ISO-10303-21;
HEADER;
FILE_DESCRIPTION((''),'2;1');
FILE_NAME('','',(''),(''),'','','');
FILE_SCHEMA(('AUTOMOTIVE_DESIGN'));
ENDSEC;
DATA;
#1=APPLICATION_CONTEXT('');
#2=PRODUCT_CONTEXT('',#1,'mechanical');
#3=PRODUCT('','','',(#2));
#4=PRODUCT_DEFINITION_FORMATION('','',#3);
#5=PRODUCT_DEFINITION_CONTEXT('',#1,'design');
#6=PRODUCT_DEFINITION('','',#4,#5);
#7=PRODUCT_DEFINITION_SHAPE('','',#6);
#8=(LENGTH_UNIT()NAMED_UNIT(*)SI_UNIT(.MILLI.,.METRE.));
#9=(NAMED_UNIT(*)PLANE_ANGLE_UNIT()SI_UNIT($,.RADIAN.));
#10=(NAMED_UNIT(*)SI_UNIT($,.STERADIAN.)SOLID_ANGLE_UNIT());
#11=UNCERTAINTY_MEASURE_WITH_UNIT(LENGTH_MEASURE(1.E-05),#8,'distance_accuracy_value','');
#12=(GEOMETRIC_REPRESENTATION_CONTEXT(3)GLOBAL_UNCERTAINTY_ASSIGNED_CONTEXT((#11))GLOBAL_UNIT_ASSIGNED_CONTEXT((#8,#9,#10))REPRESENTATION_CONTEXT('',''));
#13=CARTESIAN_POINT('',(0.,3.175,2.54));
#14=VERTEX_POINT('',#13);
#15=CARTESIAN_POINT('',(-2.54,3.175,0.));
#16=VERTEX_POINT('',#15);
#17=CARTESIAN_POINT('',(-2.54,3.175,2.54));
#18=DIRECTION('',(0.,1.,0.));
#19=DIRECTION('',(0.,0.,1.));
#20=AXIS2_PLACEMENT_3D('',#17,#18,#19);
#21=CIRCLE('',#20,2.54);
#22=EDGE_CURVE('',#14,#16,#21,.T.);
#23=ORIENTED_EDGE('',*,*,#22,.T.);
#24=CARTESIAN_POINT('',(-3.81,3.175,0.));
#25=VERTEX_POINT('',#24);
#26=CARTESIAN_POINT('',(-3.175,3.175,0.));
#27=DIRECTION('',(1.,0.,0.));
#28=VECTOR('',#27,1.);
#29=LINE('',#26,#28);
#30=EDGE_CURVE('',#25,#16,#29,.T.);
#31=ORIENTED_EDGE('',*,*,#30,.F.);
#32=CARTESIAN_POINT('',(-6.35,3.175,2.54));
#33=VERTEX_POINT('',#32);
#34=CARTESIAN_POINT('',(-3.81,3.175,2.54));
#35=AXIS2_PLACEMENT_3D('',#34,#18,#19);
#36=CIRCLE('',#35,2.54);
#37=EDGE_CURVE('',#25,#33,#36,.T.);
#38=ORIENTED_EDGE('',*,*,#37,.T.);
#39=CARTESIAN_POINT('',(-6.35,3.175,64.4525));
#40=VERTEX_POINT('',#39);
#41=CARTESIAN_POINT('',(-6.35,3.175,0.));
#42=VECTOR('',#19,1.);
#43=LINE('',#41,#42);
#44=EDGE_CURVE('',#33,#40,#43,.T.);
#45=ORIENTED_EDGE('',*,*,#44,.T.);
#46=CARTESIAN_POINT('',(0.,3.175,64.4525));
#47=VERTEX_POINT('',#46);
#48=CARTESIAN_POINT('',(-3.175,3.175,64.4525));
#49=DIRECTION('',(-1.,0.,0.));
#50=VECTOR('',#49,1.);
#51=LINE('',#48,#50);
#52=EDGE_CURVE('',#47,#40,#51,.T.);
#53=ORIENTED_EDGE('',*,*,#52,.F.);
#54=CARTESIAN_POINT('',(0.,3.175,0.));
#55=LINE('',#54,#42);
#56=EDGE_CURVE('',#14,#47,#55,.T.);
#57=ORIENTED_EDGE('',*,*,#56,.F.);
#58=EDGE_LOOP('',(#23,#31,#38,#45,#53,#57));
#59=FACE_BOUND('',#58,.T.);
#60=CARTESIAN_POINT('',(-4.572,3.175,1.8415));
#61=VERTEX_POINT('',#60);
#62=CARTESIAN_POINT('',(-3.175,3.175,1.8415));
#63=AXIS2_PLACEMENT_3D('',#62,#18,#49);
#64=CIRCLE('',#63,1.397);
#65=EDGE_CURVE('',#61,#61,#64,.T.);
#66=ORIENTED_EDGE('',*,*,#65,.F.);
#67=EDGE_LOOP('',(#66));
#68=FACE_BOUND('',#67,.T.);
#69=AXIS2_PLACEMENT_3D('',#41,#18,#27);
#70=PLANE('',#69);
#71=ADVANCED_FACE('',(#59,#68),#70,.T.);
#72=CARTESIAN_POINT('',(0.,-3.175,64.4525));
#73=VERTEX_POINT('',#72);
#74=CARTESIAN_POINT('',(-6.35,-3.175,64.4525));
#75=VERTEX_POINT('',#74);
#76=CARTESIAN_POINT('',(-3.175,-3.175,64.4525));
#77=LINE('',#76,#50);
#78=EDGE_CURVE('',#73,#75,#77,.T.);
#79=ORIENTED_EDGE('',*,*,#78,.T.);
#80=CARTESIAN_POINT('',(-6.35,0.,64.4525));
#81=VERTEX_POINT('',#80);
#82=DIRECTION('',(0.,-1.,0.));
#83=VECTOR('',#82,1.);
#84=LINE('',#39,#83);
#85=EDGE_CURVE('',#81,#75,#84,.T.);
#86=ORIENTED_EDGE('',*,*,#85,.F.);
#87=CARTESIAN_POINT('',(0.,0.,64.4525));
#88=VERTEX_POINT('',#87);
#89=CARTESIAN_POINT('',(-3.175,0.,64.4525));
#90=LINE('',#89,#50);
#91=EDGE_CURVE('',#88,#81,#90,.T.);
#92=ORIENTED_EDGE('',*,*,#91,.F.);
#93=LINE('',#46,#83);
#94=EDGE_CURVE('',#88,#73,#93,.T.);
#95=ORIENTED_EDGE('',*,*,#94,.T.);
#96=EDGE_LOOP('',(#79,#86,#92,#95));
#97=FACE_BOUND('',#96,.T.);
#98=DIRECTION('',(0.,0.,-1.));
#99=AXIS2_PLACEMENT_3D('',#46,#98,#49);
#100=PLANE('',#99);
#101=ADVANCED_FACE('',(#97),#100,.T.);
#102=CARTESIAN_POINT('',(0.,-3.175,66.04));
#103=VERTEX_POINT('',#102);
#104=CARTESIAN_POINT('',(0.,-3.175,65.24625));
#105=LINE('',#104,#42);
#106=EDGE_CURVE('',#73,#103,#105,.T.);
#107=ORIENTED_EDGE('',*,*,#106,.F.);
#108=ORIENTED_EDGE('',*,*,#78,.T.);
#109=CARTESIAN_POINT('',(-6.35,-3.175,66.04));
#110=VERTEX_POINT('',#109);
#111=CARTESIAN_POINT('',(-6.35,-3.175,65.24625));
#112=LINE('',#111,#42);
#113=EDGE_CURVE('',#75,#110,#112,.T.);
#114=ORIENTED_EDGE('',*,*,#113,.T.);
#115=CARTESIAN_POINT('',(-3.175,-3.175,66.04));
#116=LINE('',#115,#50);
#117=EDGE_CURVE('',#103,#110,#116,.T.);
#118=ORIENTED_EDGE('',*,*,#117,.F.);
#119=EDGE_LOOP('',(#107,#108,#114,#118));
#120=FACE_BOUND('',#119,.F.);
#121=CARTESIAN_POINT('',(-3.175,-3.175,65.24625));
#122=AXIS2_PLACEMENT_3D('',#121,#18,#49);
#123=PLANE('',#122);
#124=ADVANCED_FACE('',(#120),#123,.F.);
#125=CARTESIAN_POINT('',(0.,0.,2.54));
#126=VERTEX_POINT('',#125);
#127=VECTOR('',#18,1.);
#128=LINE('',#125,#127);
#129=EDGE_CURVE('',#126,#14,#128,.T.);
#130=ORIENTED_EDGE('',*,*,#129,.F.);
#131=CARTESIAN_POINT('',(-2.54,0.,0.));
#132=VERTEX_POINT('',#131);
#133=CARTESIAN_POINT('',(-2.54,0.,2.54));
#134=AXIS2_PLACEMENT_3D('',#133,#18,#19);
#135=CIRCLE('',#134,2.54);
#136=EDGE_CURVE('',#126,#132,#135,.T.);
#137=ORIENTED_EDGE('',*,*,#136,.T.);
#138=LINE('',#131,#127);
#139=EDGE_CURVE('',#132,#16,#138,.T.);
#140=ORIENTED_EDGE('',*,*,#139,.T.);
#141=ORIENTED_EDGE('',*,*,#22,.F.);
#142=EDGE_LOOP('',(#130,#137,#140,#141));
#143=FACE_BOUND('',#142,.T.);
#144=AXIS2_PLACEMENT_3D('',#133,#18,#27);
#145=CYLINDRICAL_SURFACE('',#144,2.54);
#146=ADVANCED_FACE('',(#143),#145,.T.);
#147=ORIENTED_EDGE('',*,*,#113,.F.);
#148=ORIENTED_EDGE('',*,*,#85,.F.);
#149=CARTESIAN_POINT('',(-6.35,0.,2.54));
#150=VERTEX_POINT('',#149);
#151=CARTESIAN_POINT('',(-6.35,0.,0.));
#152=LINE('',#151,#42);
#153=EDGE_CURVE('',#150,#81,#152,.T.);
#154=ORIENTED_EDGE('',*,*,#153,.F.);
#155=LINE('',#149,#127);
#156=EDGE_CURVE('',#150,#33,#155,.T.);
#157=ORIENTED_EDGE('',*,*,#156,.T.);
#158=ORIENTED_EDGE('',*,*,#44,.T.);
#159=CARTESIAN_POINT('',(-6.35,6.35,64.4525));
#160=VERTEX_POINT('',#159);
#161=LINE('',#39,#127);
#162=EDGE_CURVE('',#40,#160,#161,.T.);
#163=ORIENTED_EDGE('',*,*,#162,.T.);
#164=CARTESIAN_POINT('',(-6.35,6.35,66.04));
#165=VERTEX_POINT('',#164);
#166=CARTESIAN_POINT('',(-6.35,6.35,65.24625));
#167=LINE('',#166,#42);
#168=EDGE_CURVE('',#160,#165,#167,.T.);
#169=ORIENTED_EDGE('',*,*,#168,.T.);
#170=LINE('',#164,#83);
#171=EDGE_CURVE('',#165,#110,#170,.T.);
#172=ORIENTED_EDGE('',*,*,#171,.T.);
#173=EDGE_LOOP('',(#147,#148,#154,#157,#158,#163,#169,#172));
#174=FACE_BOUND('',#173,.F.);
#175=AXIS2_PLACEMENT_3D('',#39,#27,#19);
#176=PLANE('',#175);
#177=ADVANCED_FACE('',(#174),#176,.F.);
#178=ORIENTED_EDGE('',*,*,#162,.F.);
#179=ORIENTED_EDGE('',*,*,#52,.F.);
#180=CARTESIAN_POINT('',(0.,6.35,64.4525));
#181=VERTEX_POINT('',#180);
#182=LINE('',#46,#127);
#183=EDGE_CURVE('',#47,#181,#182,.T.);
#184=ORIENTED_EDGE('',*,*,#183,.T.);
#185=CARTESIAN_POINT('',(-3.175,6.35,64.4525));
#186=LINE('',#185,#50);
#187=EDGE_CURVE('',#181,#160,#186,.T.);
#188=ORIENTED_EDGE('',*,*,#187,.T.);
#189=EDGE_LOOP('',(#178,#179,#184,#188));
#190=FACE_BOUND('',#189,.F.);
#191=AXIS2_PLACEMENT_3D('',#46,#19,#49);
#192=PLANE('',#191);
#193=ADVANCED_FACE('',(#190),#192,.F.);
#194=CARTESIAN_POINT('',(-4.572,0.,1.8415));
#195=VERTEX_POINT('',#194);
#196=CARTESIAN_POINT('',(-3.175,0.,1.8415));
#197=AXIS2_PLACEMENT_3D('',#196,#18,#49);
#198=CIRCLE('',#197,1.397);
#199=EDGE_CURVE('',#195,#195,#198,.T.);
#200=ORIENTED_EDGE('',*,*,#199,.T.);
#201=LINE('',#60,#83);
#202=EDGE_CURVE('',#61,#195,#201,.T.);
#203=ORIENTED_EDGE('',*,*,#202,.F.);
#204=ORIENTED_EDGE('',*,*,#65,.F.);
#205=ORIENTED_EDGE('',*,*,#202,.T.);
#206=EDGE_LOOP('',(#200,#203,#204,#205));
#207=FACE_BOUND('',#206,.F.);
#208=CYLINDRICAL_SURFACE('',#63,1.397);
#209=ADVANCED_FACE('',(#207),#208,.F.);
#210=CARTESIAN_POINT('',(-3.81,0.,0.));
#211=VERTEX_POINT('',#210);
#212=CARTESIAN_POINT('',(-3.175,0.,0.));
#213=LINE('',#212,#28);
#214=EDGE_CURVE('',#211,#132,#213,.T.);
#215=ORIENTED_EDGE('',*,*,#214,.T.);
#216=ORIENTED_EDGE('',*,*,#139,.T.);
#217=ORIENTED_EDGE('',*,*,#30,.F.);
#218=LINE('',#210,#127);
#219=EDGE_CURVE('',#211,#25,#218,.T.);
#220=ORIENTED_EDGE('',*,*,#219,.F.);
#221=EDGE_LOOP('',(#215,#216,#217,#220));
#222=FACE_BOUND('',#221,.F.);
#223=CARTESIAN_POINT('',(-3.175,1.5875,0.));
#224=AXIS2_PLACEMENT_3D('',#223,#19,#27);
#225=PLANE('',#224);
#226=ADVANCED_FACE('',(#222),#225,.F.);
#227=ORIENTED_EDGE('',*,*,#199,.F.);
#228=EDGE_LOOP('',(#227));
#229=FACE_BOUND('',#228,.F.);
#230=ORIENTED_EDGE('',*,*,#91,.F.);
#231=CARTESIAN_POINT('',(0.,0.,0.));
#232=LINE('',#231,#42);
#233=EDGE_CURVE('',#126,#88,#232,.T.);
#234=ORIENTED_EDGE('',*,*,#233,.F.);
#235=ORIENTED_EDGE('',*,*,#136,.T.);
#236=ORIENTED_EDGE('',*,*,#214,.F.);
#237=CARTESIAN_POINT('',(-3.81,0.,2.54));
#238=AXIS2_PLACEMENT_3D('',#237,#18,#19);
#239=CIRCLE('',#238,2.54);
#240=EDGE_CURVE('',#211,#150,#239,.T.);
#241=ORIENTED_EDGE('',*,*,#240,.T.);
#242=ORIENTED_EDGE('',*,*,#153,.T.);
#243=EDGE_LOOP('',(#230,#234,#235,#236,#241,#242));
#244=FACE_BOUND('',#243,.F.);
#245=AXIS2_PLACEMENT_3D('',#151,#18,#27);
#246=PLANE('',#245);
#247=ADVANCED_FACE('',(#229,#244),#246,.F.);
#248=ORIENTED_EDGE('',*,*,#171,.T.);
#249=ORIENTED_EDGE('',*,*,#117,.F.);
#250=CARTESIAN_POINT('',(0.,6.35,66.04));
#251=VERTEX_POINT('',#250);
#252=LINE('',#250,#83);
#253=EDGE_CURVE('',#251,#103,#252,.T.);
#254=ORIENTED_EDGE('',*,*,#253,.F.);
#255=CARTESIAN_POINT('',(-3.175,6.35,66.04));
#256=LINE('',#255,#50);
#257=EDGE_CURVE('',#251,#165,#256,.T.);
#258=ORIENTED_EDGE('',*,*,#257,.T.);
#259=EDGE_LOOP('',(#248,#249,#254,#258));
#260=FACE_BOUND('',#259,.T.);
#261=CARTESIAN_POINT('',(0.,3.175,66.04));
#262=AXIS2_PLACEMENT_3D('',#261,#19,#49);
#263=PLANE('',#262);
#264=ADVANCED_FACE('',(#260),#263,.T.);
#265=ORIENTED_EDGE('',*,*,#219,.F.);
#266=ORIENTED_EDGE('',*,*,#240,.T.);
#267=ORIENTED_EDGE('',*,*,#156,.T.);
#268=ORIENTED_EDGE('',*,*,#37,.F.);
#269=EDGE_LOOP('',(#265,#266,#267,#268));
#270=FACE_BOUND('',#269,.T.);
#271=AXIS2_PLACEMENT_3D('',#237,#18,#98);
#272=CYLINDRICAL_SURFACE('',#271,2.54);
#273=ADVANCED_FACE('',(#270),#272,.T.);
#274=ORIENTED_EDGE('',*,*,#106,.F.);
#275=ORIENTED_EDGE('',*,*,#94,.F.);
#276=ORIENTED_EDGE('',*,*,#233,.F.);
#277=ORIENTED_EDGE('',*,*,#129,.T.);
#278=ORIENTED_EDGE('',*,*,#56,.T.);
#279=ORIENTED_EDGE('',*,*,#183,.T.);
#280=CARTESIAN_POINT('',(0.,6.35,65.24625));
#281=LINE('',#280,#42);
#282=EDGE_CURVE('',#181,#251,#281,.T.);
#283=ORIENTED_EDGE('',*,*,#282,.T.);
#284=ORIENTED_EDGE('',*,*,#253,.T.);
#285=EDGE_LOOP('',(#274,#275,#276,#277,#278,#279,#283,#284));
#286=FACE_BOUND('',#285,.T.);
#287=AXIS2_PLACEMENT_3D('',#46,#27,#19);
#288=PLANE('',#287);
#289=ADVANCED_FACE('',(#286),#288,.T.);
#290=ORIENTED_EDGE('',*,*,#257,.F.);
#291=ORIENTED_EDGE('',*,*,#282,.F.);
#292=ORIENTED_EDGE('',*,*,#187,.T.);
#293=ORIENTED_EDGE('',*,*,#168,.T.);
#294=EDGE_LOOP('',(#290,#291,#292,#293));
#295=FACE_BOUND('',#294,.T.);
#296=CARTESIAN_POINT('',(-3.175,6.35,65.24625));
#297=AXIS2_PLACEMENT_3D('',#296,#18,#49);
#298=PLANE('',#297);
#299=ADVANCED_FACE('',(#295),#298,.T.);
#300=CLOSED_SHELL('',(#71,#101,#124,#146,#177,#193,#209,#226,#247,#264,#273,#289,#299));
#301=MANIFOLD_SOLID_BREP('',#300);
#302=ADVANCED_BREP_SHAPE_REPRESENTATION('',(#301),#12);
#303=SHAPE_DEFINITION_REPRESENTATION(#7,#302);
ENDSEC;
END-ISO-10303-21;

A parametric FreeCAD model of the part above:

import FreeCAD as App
import Part
import Sketcher
from FreeCAD import Vector
Q = App.Units.Quantity


def edges_at(feature, points):
    """Names of the edges that pass closest to the given points."""
    edges = feature.Shape.Edges
    near = lambda p: min(range(len(edges)), key=lambda i: edges[i].distToShape(Part.Vertex(*p))[0])
    return sorted({f"Edge{near(p) + 1}" for p in points})

doc = App.newDocument("Part")
body = doc.addObject("PartDesign::Body", "Body")

# Sketch on XY plane
sketch1 = doc.addObject("Sketcher::SketchObject", "Sketch")
body.addObject(sketch1)
sketch1.AttachmentSupport = (doc.XY_Plane, [""])
sketch1.MapMode = "FlatFace"
sketch1.addGeometry(Part.LineSegment(Vector(-6.3, 3.2, 0), Vector(-6.3, 0, 0)), False)
sketch1.addGeometry(Part.LineSegment(Vector(-6.3, 0, 0), Vector(0, 0, 0)), False)
sketch1.addGeometry(Part.LineSegment(Vector(0, 0, 0), Vector(0, 3.2, 0)), False)
sketch1.addGeometry(Part.LineSegment(Vector(0, 3.2, 0), Vector(-6.3, 3.2, 0)), False)
sketch1.addConstraint(Sketcher.Constraint("Coincident", 0, 2, 1, 1))
sketch1.addConstraint(Sketcher.Constraint("Coincident", 1, 2, 2, 1))
sketch1.addConstraint(Sketcher.Constraint("Coincident", 2, 2, 3, 1))
sketch1.addConstraint(Sketcher.Constraint("Coincident", 3, 2, 0, 1))
sketch1.addConstraint(Sketcher.Constraint("Vertical", 0))
sketch1.addConstraint(Sketcher.Constraint("Horizontal", 1))
sketch1.addConstraint(Sketcher.Constraint("Vertical", 2))
sketch1.addConstraint(Sketcher.Constraint("Horizontal", 3))
sketch1.addConstraint(Sketcher.Constraint("Coincident", 1, 2, -1, 1))
sketch1.addConstraint(Sketcher.Constraint("DistanceX", 1, 1, 1, 2, Q("0.25 in")))
sketch1.addConstraint(Sketcher.Constraint("DistanceY", 0, 2, 0, 1, Q("0.125 in")))
pad1 = doc.addObject("PartDesign::Pad", "Pad")
body.addObject(pad1)
pad1.Profile = sketch1
pad1.Length = Q("2.6 in")

# Sketch on XZ plane
sketch2 = doc.addObject("Sketcher::SketchObject", "Sketch001")
body.addObject(sketch2)
sketch2.AttachmentSupport = (doc.XZ_Plane, [""])
sketch2.MapMode = "FlatFace"
sketch2.AttachmentOffset = App.Placement(Vector(0, 0, -0.125 * 25.4), App.Rotation())
sketch2.addGeometry(Part.LineSegment(Vector(0, 66, 0), Vector(0, 64.5, 0)), False)
sketch2.addGeometry(Part.LineSegment(Vector(0, 64.5, 0), Vector(-6.3, 64.5, 0)), False)
sketch2.addGeometry(Part.LineSegment(Vector(-6.3, 64.5, 0), Vector(-6.3, 66, 0)), False)
sketch2.addGeometry(Part.LineSegment(Vector(-6.3, 66, 0), Vector(0, 66, 0)), False)
sketch2.addConstraint(Sketcher.Constraint("Coincident", 0, 2, 1, 1))
sketch2.addConstraint(Sketcher.Constraint("Coincident", 1, 2, 2, 1))
sketch2.addConstraint(Sketcher.Constraint("Coincident", 2, 2, 3, 1))
sketch2.addConstraint(Sketcher.Constraint("Coincident", 3, 2, 0, 1))
sketch2.addConstraint(Sketcher.Constraint("Vertical", 0))
sketch2.addConstraint(Sketcher.Constraint("Horizontal", 1))
sketch2.addConstraint(Sketcher.Constraint("Vertical", 2))
sketch2.addConstraint(Sketcher.Constraint("Horizontal", 3))
sketch2.addConstraint(Sketcher.Constraint("PointOnObject", 0, 2, -2))
sketch2.addConstraint(Sketcher.Constraint("DistanceX", 1, 2, 1, 1, Q("0.25 in")))
sketch2.addConstraint(Sketcher.Constraint("DistanceY", -1, 1, 2, 2, Q("2.6 in")))
sketch2.addConstraint(Sketcher.Constraint("DistanceY", 0, 2, 0, 1, Q("0.0625 in")))
pad2 = doc.addObject("PartDesign::Pad", "Pad001")
body.addObject(pad2)
pad2.Profile = sketch2
pad2.Type = "TwoLengths"
pad2.Length = Q("0.125 in")
pad2.Length2 = Q("0.25 in")
pad2.Reversed = True

# Sketch on XZ plane
sketch3 = doc.addObject("Sketcher::SketchObject", "Sketch002")
body.addObject(sketch3)
sketch3.AttachmentSupport = (doc.XZ_Plane, [""])
sketch3.MapMode = "FlatFace"
sketch3.AttachmentOffset = App.Placement(Vector(0, 0, -0.125 * 25.4), App.Rotation())
sketch3.addGeometry(Part.Circle(Vector(-3.2, 1.8, 0), Vector(0, 0, 1), 1.4), False)
sketch3.addConstraint(Sketcher.Constraint("Diameter", 0, Q("0.11 in")))
sketch3.addConstraint(Sketcher.Constraint("DistanceX", 0, 3, -1, 1, Q("0.125 in")))
sketch3.addConstraint(Sketcher.Constraint("DistanceY", -1, 1, 0, 3, Q("0.0725 in")))
pocket1 = doc.addObject("PartDesign::Pocket", "Pocket")
body.addObject(pocket1)
pocket1.Profile = sketch3
pocket1.Length = Q("1 in")
pocket1.Reversed = True
doc.recompute()

fillet = doc.addObject("PartDesign::Fillet", "Fillet")
body.addObject(fillet)
fillet.Base = (pocket1, edges_at(pocket1, [(-6.35, 1.587, 0), (0, 1.587, 0)]))
fillet.Radius = Q("0.1 in")

doc.recompute()
